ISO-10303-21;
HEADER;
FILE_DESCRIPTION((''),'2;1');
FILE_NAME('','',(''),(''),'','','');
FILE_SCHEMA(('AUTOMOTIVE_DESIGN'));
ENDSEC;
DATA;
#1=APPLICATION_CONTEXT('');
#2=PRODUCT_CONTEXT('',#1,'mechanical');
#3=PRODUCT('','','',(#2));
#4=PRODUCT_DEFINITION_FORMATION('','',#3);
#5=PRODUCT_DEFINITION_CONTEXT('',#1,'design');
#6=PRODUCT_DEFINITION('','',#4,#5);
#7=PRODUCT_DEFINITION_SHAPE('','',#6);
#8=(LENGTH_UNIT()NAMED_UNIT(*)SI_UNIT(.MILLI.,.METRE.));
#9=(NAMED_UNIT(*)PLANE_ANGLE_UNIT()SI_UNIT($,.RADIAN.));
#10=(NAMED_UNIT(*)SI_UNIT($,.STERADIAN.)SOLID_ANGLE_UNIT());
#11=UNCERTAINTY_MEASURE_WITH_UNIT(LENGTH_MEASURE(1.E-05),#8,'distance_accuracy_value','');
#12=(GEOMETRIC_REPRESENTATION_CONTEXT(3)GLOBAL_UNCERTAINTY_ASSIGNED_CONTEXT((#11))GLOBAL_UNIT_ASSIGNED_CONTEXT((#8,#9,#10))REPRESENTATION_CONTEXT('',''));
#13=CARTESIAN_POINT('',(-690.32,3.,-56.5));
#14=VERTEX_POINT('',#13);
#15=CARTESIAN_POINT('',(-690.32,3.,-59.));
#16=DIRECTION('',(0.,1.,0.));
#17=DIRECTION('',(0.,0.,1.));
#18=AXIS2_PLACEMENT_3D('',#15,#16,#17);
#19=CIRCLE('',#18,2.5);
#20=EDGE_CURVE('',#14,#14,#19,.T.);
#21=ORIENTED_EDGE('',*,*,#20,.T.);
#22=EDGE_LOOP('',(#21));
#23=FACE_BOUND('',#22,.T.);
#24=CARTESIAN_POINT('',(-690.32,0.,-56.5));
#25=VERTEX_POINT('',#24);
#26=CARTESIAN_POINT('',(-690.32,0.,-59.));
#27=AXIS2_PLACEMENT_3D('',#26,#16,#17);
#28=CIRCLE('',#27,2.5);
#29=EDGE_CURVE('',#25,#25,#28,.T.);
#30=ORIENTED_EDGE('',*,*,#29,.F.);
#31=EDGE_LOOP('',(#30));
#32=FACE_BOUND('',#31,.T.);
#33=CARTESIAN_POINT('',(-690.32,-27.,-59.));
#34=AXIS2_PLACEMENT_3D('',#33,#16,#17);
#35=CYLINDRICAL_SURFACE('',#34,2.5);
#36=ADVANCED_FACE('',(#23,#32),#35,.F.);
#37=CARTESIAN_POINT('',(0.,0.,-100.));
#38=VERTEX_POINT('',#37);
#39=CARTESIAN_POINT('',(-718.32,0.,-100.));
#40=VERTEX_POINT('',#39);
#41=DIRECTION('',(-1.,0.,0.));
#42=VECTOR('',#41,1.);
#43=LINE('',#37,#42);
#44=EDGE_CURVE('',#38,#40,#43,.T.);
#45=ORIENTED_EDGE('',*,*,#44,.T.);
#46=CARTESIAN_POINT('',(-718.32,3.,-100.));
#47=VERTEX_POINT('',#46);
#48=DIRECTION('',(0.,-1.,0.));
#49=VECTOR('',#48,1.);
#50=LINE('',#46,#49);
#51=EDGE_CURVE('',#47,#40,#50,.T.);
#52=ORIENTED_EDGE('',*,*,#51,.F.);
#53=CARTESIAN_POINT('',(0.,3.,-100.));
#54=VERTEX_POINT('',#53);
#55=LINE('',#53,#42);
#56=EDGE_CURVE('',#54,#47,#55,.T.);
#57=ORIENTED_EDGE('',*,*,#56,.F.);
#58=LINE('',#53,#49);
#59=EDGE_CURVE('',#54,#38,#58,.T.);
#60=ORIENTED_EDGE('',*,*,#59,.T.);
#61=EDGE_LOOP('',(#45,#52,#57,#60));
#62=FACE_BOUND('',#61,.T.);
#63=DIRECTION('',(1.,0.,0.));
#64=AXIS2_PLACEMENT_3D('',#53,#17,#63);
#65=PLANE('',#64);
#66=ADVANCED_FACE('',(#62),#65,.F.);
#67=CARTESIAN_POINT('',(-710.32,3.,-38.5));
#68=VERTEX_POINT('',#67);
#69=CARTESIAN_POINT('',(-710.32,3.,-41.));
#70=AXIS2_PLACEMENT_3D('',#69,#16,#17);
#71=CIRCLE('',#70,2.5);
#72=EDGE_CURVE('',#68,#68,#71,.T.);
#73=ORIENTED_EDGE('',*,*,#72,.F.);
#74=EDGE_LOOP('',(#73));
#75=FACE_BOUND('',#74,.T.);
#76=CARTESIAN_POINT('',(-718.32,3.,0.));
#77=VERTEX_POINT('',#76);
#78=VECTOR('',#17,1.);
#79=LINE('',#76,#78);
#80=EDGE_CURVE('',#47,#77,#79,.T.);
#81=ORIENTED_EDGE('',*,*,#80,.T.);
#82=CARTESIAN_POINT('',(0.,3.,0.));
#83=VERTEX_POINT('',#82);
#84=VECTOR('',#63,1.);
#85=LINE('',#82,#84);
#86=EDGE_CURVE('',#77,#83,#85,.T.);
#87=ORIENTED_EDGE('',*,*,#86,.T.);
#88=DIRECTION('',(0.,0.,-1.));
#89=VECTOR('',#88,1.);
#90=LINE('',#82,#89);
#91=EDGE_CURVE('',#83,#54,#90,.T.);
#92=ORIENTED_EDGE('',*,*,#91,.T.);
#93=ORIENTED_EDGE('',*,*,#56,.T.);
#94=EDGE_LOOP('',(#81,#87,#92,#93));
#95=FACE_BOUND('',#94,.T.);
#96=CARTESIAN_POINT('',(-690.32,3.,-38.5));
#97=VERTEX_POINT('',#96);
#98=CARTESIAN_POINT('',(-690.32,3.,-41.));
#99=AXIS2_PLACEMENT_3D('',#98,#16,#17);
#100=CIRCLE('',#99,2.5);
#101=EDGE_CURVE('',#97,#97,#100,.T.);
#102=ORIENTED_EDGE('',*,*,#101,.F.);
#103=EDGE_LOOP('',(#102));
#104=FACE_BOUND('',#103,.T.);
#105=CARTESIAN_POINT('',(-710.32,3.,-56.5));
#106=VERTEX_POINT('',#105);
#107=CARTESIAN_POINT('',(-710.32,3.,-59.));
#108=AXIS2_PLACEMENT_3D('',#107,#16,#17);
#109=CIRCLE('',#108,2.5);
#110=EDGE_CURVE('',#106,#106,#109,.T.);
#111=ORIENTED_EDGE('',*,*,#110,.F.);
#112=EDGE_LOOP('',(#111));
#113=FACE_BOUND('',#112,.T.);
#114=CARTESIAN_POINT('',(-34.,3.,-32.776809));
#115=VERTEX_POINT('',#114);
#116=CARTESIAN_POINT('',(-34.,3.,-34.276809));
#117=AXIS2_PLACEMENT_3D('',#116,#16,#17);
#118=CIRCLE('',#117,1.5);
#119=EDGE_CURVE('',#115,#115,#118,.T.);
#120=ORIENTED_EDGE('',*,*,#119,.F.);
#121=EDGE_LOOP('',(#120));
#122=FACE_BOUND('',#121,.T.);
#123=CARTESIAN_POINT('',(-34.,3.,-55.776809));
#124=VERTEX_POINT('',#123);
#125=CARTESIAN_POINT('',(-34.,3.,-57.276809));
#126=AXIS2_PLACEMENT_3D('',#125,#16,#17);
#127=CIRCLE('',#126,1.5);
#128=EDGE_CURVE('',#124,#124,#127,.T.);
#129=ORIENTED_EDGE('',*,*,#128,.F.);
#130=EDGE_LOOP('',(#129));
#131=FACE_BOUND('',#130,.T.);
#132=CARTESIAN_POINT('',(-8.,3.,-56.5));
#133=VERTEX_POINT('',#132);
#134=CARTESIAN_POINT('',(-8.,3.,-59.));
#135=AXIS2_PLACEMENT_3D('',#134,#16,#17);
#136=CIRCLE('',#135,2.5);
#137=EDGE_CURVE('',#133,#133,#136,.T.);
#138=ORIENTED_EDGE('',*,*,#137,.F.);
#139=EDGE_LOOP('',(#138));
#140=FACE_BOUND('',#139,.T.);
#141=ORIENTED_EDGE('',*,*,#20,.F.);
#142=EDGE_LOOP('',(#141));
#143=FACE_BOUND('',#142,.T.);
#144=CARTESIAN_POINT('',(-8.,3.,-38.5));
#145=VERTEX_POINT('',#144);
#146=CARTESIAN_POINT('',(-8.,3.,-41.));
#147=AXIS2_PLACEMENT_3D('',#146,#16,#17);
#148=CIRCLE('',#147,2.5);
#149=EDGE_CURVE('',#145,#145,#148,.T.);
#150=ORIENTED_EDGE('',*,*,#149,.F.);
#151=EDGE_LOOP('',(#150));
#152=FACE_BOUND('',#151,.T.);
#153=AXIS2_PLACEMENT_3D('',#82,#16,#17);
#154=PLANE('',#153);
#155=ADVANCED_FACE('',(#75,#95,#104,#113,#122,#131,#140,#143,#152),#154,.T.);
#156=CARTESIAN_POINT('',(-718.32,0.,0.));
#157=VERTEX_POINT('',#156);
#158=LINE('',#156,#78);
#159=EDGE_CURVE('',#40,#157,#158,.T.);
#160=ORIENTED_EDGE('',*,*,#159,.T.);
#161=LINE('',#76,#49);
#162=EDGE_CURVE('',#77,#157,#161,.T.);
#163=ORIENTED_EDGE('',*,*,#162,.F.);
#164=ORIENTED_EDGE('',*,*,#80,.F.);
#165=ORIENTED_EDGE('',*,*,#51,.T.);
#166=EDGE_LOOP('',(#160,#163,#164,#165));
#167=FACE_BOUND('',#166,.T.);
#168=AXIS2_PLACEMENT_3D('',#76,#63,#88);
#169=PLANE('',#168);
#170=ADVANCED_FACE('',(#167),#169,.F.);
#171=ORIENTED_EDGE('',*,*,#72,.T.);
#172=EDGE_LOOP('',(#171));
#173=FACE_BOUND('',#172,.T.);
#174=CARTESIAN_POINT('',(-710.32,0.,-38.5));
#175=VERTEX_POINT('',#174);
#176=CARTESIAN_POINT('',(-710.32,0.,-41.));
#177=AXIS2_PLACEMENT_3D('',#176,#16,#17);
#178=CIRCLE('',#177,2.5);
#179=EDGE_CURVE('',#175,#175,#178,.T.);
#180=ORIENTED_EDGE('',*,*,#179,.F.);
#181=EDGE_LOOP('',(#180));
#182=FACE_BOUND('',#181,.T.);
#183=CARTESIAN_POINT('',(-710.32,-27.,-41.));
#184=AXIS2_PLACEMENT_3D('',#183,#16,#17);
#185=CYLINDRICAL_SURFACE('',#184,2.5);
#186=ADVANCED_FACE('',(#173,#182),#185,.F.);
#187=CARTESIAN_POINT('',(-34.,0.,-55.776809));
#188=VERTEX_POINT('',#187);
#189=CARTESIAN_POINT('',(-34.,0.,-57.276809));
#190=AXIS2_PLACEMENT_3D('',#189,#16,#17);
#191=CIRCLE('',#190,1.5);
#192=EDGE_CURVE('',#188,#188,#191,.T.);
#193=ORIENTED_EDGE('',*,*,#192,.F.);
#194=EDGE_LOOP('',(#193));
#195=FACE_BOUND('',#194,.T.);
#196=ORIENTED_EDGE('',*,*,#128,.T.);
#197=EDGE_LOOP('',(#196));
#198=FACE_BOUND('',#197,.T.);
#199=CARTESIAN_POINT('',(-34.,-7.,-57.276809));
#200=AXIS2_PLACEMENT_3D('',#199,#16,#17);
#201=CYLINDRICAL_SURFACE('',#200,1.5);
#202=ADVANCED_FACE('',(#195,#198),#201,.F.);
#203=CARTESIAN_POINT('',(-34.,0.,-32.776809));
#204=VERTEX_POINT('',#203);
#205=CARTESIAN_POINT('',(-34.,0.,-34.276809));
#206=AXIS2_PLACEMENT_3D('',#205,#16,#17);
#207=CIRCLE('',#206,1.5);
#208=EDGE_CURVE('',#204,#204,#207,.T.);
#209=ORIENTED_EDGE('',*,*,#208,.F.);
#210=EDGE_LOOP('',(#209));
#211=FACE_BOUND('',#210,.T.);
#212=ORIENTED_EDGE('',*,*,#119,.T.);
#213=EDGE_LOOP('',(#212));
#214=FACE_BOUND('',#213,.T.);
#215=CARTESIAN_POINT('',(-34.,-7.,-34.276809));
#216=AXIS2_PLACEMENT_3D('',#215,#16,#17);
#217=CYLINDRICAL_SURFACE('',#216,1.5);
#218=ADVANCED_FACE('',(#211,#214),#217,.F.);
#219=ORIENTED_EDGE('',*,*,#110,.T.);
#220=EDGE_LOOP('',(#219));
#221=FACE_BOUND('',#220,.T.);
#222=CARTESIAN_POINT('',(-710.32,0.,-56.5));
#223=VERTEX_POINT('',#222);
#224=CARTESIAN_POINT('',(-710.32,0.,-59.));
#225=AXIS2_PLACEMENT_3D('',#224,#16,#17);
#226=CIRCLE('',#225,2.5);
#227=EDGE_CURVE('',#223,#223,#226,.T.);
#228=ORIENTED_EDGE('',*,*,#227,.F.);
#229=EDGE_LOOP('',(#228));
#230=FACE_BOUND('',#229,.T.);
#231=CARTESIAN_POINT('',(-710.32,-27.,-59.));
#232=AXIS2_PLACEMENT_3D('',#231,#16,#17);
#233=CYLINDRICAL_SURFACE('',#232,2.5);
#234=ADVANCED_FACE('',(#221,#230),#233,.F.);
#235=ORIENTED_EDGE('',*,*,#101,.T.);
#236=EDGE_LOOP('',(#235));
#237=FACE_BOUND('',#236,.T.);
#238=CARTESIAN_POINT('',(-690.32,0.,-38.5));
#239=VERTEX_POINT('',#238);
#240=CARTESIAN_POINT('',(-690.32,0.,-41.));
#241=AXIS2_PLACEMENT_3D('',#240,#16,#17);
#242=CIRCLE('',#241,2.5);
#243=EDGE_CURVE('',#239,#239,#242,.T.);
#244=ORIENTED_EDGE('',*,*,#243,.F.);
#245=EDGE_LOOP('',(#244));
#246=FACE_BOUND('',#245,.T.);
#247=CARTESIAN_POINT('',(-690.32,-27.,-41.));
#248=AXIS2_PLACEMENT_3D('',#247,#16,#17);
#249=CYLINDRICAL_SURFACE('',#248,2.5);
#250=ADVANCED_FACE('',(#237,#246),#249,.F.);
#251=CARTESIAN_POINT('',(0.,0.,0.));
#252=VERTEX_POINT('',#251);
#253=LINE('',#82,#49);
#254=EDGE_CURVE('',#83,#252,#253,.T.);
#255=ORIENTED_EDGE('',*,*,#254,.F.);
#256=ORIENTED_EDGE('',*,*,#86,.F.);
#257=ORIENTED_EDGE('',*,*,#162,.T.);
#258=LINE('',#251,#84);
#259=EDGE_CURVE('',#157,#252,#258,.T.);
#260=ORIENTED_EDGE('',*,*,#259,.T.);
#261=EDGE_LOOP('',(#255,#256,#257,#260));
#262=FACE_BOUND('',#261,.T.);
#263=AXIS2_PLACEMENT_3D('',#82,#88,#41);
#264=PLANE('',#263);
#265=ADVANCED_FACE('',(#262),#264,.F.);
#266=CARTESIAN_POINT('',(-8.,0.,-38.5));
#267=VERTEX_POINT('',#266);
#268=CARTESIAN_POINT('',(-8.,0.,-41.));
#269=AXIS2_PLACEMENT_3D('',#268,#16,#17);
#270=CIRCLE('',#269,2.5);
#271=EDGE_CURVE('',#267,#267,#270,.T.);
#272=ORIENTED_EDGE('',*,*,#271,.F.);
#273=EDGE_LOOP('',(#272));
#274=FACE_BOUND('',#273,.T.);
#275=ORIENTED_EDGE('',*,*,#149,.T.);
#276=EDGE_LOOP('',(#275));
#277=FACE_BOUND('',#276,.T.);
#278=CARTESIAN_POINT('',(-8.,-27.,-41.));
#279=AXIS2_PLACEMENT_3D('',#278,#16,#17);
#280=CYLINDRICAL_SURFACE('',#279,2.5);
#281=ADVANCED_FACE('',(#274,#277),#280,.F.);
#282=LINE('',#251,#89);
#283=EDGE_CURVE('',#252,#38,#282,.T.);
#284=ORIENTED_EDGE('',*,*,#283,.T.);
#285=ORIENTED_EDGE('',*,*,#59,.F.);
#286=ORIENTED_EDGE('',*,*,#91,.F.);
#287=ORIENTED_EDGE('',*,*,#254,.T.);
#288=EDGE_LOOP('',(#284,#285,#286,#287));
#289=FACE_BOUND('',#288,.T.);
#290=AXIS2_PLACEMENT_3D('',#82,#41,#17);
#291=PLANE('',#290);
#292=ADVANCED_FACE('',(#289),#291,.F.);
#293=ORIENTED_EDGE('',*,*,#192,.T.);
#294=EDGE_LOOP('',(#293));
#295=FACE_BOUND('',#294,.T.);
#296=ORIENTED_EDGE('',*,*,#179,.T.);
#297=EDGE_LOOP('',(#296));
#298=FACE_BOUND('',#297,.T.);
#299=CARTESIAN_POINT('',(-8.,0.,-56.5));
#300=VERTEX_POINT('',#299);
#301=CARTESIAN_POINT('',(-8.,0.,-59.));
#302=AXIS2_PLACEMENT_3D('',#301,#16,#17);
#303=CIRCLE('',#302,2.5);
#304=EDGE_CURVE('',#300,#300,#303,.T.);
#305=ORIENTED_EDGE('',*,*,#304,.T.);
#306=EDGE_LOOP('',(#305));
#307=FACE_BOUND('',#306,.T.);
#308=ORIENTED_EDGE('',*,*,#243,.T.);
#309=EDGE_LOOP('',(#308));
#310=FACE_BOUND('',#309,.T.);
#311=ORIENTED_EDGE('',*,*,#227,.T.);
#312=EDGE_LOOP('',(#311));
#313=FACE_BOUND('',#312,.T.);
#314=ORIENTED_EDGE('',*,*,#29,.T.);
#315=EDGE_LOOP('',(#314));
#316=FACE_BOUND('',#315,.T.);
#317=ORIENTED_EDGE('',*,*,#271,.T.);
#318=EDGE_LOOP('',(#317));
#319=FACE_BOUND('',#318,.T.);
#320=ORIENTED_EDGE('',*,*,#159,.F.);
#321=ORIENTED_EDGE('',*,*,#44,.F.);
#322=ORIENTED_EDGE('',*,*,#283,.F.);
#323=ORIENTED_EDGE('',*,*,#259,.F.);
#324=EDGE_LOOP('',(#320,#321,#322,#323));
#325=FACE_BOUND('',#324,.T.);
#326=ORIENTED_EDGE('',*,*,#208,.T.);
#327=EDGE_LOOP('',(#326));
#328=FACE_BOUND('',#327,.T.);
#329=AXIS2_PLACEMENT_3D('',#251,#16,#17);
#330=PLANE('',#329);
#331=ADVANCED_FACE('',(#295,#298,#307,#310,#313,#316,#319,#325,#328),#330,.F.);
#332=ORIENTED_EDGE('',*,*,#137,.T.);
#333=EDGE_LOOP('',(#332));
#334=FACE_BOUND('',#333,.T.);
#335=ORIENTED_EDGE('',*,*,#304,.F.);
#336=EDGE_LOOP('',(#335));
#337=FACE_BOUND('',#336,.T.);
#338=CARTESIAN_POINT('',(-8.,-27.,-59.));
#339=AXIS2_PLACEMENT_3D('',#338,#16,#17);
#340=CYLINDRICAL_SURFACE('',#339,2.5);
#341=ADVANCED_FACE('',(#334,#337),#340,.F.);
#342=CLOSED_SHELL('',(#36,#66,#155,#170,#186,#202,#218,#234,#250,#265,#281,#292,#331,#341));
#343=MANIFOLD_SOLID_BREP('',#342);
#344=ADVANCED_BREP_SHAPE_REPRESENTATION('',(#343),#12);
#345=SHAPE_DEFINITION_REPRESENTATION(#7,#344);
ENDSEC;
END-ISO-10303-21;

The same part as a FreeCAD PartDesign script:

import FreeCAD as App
import Part
import Sketcher

V = App.Vector
Q = App.Units.Quantity


def add_polygon(sketch, points):
    """Adds a closed chain of lines whose ends are joined by coincident constraints."""
    first, n = sketch.GeometryCount, len(points)
    for a, b in zip(points, points[1:] + points[:1]):
        sketch.addGeometry(Part.LineSegment(App.Vector(*a, 0), App.Vector(*b, 0)), False)
    for i in range(n):
        sketch.addConstraint(Sketcher.Constraint("Coincident", first + i, 2, first + (i + 1) % n, 1))

doc = App.newDocument("Part")
body = doc.addObject("PartDesign::Body", "Body")

sketch1 = body.newObject("Sketcher::SketchObject", "Sketch")
sketch1.AttachmentSupport = (doc.getObject("XZ_Plane"), [""])
sketch1.MapMode = "FlatFace"
add_polygon(sketch1, [(-718.32, -100), (-718.32, 0), (0, 0), (0, -100)])
sketch1.addConstraint([
    Sketcher.Constraint("Vertical", 0),
    Sketcher.Constraint("Horizontal", 1),
    Sketcher.Constraint("Vertical", 2),
    Sketcher.Constraint("Horizontal", 3),
    Sketcher.Constraint("Coincident", 1, 2, -1, 1),
    Sketcher.Constraint("DistanceY", 0, 1, 0, 2, Q("100 mm")),
    Sketcher.Constraint("DistanceX", 1, 1, 1, 2, Q("718.32 mm")),
])
pad1 = body.newObject("PartDesign::Pad", "Pad")
pad1.Profile = sketch1
pad1.Length = 3
pad1.Reversed = True

sketch2 = body.newObject("Sketcher::SketchObject", "Sketch001")
sketch2.AttachmentSupport = (doc.getObject("XZ_Plane"), [""])
sketch2.MapMode = "FlatFace"
sketch2.AttachmentOffset = App.Placement(V(0, 0, -3), App.Rotation())
sketch2.addGeometry([
    Part.Circle(V(-710.32, -59, 0), V(0, 0, 1), 2.5),
    Part.Circle(V(-8, -59, 0), V(0, 0, 1), 2.5),
    Part.Circle(V(-8, -41, 0), V(0, 0, 1), 2.5),
    Part.Circle(V(-710.32, -41, 0), V(0, 0, 1), 2.5),
], False)
sketch2.addConstraint([
    Sketcher.Constraint("Equal", 0, 1),
    Sketcher.Constraint("Equal", 1, 2),
    Sketcher.Constraint("Equal", 2, 3),
    Sketcher.Constraint("Horizontal", 0, 3, 1, 3),
    Sketcher.Constraint("Horizontal", 2, 3, 3, 3),
    Sketcher.Constraint("Vertical", 1, 3, 2, 3),
    Sketcher.Constraint("Vertical", 0, 3, 3, 3),
    Sketcher.Constraint("Diameter", 0, Q("5 mm")),
    Sketcher.Constraint("DistanceY", 0, 3, -1, 1, Q("59 mm")),
    Sketcher.Constraint("DistanceX", 1, 3, -1, 1, Q("8 mm")),
    Sketcher.Constraint("DistanceY", 2, 3, -1, 1, Q("41 mm")),
    Sketcher.Constraint("DistanceX", 0, 3, -1, 1, Q("710.32 mm")),
])
pocket1 = body.newObject("PartDesign::Pocket", "Pocket")
pocket1.Profile = sketch2
pocket1.Length = 30
pocket1.Reversed = True

sketch3 = body.newObject("Sketcher::SketchObject", "Sketch002")
sketch3.AttachmentSupport = (doc.getObject("XZ_Plane"), [""])
sketch3.MapMode = "FlatFace"
sketch3.AttachmentOffset = App.Placement(V(0, 0, -3), App.Rotation())
sketch3.addGeometry([
    Part.Circle(V(-690.32, -59, 0), V(0, 0, 1), 2.5),
    Part.Circle(V(-690.32, -41, 0), V(0, 0, 1), 2.5),
], False)
sketch3.addConstraint([
    Sketcher.Constraint("Equal", 0, 1),
    Sketcher.Constraint("Vertical", 0, 3, 1, 3),
    Sketcher.Constraint("Diameter", 0, Q("5 mm")),
    Sketcher.Constraint("DistanceY", 0, 3, -1, 1, Q("59 mm")),
    Sketcher.Constraint("DistanceY", 1, 3, -1, 1, Q("41 mm")),
    Sketcher.Constraint("DistanceX", 0, 3, -1, 1, Q("690.32 mm")),
])
pocket2 = body.newObject("PartDesign::Pocket", "Pocket001")
pocket2.Profile = sketch3
pocket2.Length = 30
pocket2.Reversed = True

sketch4 = body.newObject("Sketcher::SketchObject", "Sketch003")
sketch4.AttachmentSupport = (doc.getObject("XZ_Plane"), [""])
sketch4.MapMode = "FlatFace"
sketch4.AttachmentOffset = App.Placement(V(0, 0, -3), App.Rotation())
sketch4.addGeometry([
    Part.Circle(V(-34, -57.276809, 0), V(0, 0, 1), 1.5),
    Part.Circle(V(-34, -34.276809, 0), V(0, 0, 1), 1.5),
], False)
sketch4.addConstraint([
    Sketcher.Constraint("Equal", 0, 1),
    Sketcher.Constraint("Vertical", 0, 3, 1, 3),
    Sketcher.Constraint("Diameter", 0, Q("3 mm")),
    Sketcher.Constraint("DistanceX", 0, 3, -1, 1, Q("34 mm")),
    Sketcher.Constraint("DistanceY", 0, 3, 1, 3, Q("23 mm")),
    Sketcher.Constraint("DistanceY", 0, 3, -1, 1, Q("57.276809 mm")),
])
pocket3 = body.newObject("PartDesign::Pocket", "Pocket002")
pocket3.Profile = sketch4
pocket3.Length = 10
pocket3.Reversed = True

doc.recompute()
